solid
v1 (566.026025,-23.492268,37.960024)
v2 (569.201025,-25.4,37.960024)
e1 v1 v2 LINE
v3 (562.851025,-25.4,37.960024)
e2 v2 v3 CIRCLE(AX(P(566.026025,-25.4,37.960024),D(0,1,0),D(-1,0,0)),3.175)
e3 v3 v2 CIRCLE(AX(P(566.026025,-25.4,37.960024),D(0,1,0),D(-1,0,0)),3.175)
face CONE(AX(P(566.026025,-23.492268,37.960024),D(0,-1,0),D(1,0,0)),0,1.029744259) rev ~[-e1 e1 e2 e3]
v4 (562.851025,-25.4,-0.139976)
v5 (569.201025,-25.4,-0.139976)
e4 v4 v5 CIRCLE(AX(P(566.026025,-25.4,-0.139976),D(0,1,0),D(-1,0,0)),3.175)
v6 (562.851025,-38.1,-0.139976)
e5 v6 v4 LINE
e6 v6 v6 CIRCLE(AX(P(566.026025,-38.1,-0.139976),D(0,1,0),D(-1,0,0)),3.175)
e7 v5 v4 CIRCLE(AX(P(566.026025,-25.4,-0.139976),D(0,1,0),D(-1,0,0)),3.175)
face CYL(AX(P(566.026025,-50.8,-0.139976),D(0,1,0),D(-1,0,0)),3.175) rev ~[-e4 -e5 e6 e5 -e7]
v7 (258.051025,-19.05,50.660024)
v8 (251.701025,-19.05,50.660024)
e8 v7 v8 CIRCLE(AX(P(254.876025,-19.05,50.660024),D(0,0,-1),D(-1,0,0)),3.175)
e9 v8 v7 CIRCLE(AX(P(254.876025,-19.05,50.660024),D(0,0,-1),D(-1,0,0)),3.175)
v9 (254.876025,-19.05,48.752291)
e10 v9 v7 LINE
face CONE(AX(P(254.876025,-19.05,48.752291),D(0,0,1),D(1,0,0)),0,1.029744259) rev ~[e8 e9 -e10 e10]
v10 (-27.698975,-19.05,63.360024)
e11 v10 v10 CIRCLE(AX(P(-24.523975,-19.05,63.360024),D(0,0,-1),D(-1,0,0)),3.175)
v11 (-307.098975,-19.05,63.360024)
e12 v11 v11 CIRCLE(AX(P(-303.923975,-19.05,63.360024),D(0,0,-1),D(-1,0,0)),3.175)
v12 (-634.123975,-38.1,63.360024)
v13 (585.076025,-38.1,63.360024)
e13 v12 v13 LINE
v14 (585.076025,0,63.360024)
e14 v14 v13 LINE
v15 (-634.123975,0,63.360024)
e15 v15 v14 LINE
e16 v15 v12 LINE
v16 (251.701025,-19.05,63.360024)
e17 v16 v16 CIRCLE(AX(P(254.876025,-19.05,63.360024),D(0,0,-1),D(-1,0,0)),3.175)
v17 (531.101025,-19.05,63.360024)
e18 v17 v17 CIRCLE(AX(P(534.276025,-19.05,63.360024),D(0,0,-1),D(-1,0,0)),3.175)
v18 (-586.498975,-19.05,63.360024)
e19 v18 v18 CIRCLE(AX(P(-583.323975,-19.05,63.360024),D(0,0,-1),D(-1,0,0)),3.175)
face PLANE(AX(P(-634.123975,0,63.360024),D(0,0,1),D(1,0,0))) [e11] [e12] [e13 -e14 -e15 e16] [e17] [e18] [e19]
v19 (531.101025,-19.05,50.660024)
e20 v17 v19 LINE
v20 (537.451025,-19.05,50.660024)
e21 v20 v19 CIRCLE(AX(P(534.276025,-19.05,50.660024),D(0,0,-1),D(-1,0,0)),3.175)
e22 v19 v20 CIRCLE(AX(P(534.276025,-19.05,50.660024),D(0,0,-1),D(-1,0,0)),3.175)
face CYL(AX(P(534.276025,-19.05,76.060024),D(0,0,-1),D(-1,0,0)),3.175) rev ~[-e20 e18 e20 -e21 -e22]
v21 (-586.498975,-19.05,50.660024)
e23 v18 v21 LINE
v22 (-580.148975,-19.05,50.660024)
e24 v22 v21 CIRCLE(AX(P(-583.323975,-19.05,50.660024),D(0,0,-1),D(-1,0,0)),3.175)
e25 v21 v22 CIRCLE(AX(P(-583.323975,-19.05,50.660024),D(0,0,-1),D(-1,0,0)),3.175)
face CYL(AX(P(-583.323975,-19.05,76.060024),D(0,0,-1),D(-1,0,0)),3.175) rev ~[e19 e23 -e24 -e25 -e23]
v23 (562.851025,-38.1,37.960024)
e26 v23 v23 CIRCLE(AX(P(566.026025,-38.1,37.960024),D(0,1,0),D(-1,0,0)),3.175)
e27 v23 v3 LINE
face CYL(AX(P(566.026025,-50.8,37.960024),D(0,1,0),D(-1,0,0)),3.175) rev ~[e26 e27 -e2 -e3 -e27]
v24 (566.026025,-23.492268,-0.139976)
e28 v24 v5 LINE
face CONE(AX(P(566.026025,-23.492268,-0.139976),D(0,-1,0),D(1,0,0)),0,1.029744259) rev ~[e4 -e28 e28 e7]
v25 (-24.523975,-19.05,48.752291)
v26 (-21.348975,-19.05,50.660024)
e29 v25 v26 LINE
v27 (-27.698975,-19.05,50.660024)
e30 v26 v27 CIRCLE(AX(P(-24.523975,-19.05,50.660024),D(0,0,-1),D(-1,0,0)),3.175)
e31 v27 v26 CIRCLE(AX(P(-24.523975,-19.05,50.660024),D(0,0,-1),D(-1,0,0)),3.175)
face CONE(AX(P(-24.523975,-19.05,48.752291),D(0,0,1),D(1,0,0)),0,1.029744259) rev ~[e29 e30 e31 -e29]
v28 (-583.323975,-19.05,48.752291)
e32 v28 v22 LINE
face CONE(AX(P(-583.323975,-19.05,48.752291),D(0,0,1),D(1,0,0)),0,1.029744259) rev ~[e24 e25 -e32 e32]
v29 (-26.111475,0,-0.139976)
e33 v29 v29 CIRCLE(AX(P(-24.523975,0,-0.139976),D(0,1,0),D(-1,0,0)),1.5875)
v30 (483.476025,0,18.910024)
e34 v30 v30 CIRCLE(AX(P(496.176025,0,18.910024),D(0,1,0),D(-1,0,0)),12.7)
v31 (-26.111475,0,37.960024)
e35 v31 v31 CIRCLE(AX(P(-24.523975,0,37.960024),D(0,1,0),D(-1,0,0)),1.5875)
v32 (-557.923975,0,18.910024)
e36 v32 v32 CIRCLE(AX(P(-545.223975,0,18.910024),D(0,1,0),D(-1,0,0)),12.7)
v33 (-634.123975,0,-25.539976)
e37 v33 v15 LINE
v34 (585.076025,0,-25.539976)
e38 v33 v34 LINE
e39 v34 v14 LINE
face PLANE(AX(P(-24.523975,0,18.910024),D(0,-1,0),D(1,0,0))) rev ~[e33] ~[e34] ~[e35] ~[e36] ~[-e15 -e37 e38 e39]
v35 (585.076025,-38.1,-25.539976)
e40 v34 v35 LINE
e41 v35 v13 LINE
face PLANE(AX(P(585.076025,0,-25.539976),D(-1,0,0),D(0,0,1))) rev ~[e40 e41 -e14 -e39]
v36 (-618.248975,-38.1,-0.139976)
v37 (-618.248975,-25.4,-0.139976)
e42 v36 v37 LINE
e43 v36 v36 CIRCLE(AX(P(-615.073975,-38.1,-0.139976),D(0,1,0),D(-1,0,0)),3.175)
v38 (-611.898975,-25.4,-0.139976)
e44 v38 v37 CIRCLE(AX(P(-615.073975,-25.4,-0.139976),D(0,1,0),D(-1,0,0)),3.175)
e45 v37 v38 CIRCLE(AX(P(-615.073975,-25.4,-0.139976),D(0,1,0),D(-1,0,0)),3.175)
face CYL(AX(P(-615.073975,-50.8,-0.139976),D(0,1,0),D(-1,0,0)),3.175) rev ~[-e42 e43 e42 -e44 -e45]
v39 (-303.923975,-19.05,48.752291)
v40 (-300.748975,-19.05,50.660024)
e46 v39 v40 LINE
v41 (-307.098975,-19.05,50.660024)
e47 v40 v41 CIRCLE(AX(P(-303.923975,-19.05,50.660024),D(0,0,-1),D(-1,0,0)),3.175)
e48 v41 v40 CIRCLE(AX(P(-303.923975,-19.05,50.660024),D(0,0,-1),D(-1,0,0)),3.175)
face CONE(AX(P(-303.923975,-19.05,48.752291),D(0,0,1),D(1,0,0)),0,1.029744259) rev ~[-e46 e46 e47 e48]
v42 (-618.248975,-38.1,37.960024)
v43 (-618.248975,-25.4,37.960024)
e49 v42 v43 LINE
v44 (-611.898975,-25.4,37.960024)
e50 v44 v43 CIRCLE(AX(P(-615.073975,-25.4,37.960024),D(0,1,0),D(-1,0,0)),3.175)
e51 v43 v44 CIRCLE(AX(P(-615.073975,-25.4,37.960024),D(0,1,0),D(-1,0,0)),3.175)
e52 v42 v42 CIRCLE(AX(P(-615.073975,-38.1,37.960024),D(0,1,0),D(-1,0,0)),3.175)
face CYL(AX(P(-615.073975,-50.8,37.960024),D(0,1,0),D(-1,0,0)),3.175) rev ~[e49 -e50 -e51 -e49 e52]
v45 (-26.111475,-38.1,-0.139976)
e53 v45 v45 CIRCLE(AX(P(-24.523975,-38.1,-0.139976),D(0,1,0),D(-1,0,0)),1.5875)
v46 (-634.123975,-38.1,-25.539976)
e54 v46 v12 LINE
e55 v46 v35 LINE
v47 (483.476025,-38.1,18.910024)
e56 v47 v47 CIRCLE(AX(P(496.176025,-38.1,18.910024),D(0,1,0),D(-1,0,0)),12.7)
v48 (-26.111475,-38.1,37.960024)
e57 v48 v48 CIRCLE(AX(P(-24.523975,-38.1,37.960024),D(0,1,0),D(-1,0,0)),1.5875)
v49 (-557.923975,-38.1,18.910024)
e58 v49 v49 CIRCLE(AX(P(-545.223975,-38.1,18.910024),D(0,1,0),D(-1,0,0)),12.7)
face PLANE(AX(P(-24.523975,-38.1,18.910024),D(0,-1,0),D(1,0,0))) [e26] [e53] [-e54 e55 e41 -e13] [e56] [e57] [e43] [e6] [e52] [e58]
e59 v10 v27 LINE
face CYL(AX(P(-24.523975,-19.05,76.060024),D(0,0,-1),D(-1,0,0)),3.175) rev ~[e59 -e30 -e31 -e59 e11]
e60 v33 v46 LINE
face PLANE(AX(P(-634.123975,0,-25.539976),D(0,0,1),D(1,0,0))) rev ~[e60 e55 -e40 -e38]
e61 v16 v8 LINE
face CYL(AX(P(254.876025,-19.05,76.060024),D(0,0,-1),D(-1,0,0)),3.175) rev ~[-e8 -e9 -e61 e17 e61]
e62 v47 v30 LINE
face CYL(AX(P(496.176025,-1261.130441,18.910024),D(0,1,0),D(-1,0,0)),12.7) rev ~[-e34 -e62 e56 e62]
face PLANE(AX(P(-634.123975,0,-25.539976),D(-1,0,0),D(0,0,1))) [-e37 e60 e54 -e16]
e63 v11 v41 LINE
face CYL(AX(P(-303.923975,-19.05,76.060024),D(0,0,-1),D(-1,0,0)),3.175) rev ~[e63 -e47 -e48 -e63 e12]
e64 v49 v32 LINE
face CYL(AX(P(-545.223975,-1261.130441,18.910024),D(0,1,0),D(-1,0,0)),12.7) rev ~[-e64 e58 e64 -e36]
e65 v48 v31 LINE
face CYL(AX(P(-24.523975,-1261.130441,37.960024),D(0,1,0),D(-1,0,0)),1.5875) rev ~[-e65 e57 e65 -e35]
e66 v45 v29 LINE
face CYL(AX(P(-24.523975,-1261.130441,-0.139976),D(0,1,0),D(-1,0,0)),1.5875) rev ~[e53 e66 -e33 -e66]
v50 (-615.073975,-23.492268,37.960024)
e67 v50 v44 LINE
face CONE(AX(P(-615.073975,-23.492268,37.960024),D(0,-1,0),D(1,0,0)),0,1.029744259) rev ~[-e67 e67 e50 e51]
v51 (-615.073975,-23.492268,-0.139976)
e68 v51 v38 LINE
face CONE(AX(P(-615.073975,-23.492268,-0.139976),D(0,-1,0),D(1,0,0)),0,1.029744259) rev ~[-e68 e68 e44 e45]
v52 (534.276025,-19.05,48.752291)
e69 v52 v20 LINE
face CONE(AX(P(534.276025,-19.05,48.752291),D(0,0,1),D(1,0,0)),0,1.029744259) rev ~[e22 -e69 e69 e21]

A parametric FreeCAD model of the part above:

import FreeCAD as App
import Part
import Sketcher
Q = App.Units.Quantity

doc = App.newDocument("Part")
body = doc.addObject("PartDesign::Body", "Body")

# Sketch on XZ plane
sketch1 = body.newObject("Sketcher::SketchObject", "Sketch")
sketch1.AttachmentSupport = (doc.getObject("XZ_Plane"), [""])
sketch1.MapMode = "FlatFace"
sketch1.addGeometry(Part.LineSegment(App.Vector(-634.123975, 63.360024, 0), App.Vector(-634.123975, -25.539976, 0)), False)
sketch1.addGeometry(Part.LineSegment(App.Vector(-634.123975, -25.539976, 0), App.Vector(585.076025, -25.539976, 0)), False)
sketch1.addGeometry(Part.LineSegment(App.Vector(585.076025, -25.539976, 0), App.Vector(585.076025, 63.360024, 0)), False)
sketch1.addGeometry(Part.LineSegment(App.Vector(585.076025, 63.360024, 0), App.Vector(-634.123975, 63.360024, 0)), False)
sketch1.addConstraint(Sketcher.Constraint("Coincident", 0, 2, 1, 1))
sketch1.addConstraint(Sketcher.Constraint("Coincident", 1, 2, 2, 1))
sketch1.addConstraint(Sketcher.Constraint("Coincident", 2, 2, 3, 1))
sketch1.addConstraint(Sketcher.Constraint("Coincident", 3, 2, 0, 1))
sketch1.addConstraint(Sketcher.Constraint("Vertical", 0))
sketch1.addConstraint(Sketcher.Constraint("Horizontal", 1))
sketch1.addConstraint(Sketcher.Constraint("Vertical", 2))
sketch1.addConstraint(Sketcher.Constraint("Horizontal", 3))
sketch1.addConstraint(Sketcher.Constraint("DistanceX", 1, 1, 1, 2, Q("48 in")))
sketch1.addConstraint(Sketcher.Constraint("DistanceY", 0, 2, 0, 1, Q("3.5 in")))
sketch1.addConstraint(Sketcher.Constraint("DistanceX", 0, 2, -1, 1, Q("634.123975 mm")))
sketch1.addConstraint(Sketcher.Constraint("DistanceY", 0, 2, -1, 1, Q("25.539976 mm")))
pad1 = body.newObject("PartDesign::Pad", "Pad")
pad1.Profile = sketch1
pad1.Length = Q("1.5 in")

# Sketch on XZ plane
sketch2 = body.newObject("Sketcher::SketchObject", "Sketch001")
sketch2.AttachmentSupport = (doc.getObject("XZ_Plane"), [""])
sketch2.MapMode = "FlatFace"
sketch2.AttachmentOffset = App.Placement(App.Vector(0, 0, 1.5 * 25.4), App.Rotation())
sketch2.addGeometry(Part.Circle(App.Vector(566.026025, 37.960024, 0), App.Vector(0, 0, 1), 3.175), False)
sketch2.addGeometry(Part.Circle(App.Vector(566.026025, -0.139976, 0), App.Vector(0, 0, 1), 3.175), False)
sketch2.addGeometry(Part.Circle(App.Vector(-615.073975, 37.960024, 0), App.Vector(0, 0, 1), 3.175), False)
sketch2.addGeometry(Part.Circle(App.Vector(-615.073975, -0.139976, 0), App.Vector(0, 0, 1), 3.175), False)
sketch2.addConstraint(Sketcher.Constraint("Equal", 0, 1))
sketch2.addConstraint(Sketcher.Constraint("Equal", 1, 2))
sketch2.addConstraint(Sketcher.Constraint("Equal", 2, 3))
sketch2.addConstraint(Sketcher.Constraint("Horizontal", 0, 3, 2, 3))
sketch2.addConstraint(Sketcher.Constraint("Horizontal", 1, 3, 3, 3))
sketch2.addConstraint(Sketcher.Constraint("Vertical", 0, 3, 1, 3))
sketch2.addConstraint(Sketcher.Constraint("Vertical", 2, 3, 3, 3))
sketch2.addConstraint(Sketcher.Constraint("Diameter", 0, Q("0.25 in")))
sketch2.addConstraint(Sketcher.Constraint("DistanceY", 1, 3, 0, 3, Q("1.5 in")))
sketch2.addConstraint(Sketcher.Constraint("DistanceX", 2, 3, 0, 3, Q("46.5 in")))
sketch2.addConstraint(Sketcher.Constraint("DistanceX", -1, 1, 0, 3, Q("566.026025 mm")))
sketch2.addConstraint(Sketcher.Constraint("DistanceY", -1, 1, 0, 3, Q("37.960024 mm")))
doc.recompute()
hole = body.newObject("PartDesign::Hole", "Hole")
hole.Profile = sketch2
hole.ThreadType = "None"
hole.Diameter = Q("0.25 in")
hole.DepthType = "Dimension"
hole.Depth = Q("0.5 in")
hole.DrillPoint = "Angled"
hole.DrillPointAngle = 118

# Sketch on XY plane
sketch3 = body.newObject("Sketcher::SketchObject", "Sketch002")
sketch3.AttachmentSupport = (doc.getObject("XY_Plane"), [""])
sketch3.MapMode = "FlatFace"
sketch3.AttachmentOffset = App.Placement(App.Vector(0, 0, 63.360024), App.Rotation())
sketch3.addGeometry(Part.Circle(App.Vector(-583.323975, -19.05, 0), App.Vector(0, 0, 1), 3.175), False)
sketch3.addGeometry(Part.Circle(App.Vector(-303.923975, -19.05, 0), App.Vector(0, 0, 1), 3.175), False)
sketch3.addGeometry(Part.Circle(App.Vector(-24.523975, -19.05, 0), App.Vector(0, 0, 1), 3.175), False)
sketch3.addGeometry(Part.Circle(App.Vector(254.876025, -19.05, 0), App.Vector(0, 0, 1), 3.175), False)
sketch3.addGeometry(Part.Circle(App.Vector(534.276025, -19.05, 0), App.Vector(0, 0, 1), 3.175), False)
sketch3.addConstraint(Sketcher.Constraint("Equal", 0, 1))
sketch3.addConstraint(Sketcher.Constraint("Equal", 1, 2))
sketch3.addConstraint(Sketcher.Constraint("Equal", 2, 3))
sketch3.addConstraint(Sketcher.Constraint("Equal", 3, 4))
sketch3.addConstraint(Sketcher.Constraint("Horizontal", 0, 3, 1, 3))
sketch3.addConstraint(Sketcher.Constraint("Horizontal", 1, 3, 2, 3))
sketch3.addConstraint(Sketcher.Constraint("Horizontal", 2, 3, 3, 3))
sketch3.addConstraint(Sketcher.Constraint("Horizontal", 3, 3, 4, 3))
sketch3.addConstraint(Sketcher.Constraint("Diameter", 0, Q("0.25 in")))
sketch3.addConstraint(Sketcher.Constraint("DistanceX", 0, 3, 1, 3, Q("11 in")))
sketch3.addConstraint(Sketcher.Constraint("DistanceX", 1, 3, 2, 3, Q("11 in")))
sketch3.addConstraint(Sketcher.Constraint("DistanceX", 2, 3, 3, 3, Q("11 in")))
sketch3.addConstraint(Sketcher.Constraint("DistanceX", 3, 3, 4, 3, Q("11 in")))
sketch3.addConstraint(Sketcher.Constraint("DistanceY", 0, 3, -1, 1, Q("0.75 in")))
sketch3.addConstraint(Sketcher.Constraint("DistanceX", 0, 3, -1, 1, Q("583.323975 mm")))
doc.recompute()
hole2 = body.newObject("PartDesign::Hole", "Hole001")
hole2.Profile = sketch3
hole2.ThreadType = "None"
hole2.Diameter = Q("0.25 in")
hole2.DepthType = "Dimension"
hole2.Depth = Q("0.5 in")
hole2.DrillPoint = "Angled"
hole2.DrillPointAngle = 118

# Sketch on XZ plane
sketch4 = body.newObject("Sketcher::SketchObject", "Sketch003")
sketch4.AttachmentSupport = (doc.getObject("XZ_Plane"), [""])
sketch4.MapMode = "FlatFace"
sketch4.AttachmentOffset = App.Placement(App.Vector(0, 0, 1.5 * 25.4), App.Rotation())
sketch4.addGeometry(Part.Circle(App.Vector(-545.223975, 18.910024, 0), App.Vector(0, 0, 1), 12.7), False)
sketch4.addGeometry(Part.Circle(App.Vector(496.176025, 18.910024, 0), App.Vector(0, 0, 1), 12.7), False)
sketch4.addConstraint(Sketcher.Constraint("Equal", 0, 1))
sketch4.addConstraint(Sketcher.Constraint("Horizontal", 0, 3, 1, 3))
sketch4.addConstraint(Sketcher.Constraint("Diameter", 0, Q("1 in")))
sketch4.addConstraint(Sketcher.Constraint("DistanceX", 0, 3, 1, 3, Q("41 in")))
sketch4.addConstraint(Sketcher.Constraint("DistanceX", 0, 3, -1, 1, Q("545.223975 mm")))
sketch4.addConstraint(Sketcher.Constraint("DistanceY", -1, 1, 0, 3, Q("18.910024 mm")))
doc.recompute()
hole3 = body.newObject("PartDesign::Hole", "Hole002")
hole3.Profile = sketch4
hole3.ThreadType = "None"
hole3.Diameter = Q("1 in")
hole3.DepthType = "ThroughAll"

# Sketch on XZ plane
sketch5 = body.newObject("Sketcher::SketchObject", "Sketch004")
sketch5.AttachmentSupport = (doc.getObject("XZ_Plane"), [""])
sketch5.MapMode = "FlatFace"
sketch5.AttachmentOffset = App.Placement(App.Vector(0, 0, 1.5 * 25.4), App.Rotation())
sketch5.addGeometry(Part.Circle(App.Vector(-24.523975, 37.960024, 0), App.Vector(0, 0, 1), 1.5875), False)
sketch5.addGeometry(Part.Circle(App.Vector(-24.523975, -0.139976, 0), App.Vector(0, 0, 1), 1.5875), False)
sketch5.addConstraint(Sketcher.Constraint("Equal", 0, 1))
sketch5.addConstraint(Sketcher.Constraint("Vertical", 0, 3, 1, 3))
sketch5.addConstraint(Sketcher.Constraint("Diameter", 0, Q("0.125 in")))
sketch5.addConstraint(Sketcher.Constraint("DistanceY", 1, 3, 0, 3, Q("1.5 in")))
sketch5.addConstraint(Sketcher.Constraint("DistanceX", 0, 3, -1, 1, Q("24.523975 mm")))
sketch5.addConstraint(Sketcher.Constraint("DistanceY", -1, 1, 0, 3, Q("37.960024 mm")))
doc.recompute()
hole4 = body.newObject("PartDesign::Hole", "Hole003")
hole4.Profile = sketch5
hole4.ThreadType = "None"
hole4.Diameter = Q("0.125 in")
hole4.DepthType = "ThroughAll"

doc.recompute()
